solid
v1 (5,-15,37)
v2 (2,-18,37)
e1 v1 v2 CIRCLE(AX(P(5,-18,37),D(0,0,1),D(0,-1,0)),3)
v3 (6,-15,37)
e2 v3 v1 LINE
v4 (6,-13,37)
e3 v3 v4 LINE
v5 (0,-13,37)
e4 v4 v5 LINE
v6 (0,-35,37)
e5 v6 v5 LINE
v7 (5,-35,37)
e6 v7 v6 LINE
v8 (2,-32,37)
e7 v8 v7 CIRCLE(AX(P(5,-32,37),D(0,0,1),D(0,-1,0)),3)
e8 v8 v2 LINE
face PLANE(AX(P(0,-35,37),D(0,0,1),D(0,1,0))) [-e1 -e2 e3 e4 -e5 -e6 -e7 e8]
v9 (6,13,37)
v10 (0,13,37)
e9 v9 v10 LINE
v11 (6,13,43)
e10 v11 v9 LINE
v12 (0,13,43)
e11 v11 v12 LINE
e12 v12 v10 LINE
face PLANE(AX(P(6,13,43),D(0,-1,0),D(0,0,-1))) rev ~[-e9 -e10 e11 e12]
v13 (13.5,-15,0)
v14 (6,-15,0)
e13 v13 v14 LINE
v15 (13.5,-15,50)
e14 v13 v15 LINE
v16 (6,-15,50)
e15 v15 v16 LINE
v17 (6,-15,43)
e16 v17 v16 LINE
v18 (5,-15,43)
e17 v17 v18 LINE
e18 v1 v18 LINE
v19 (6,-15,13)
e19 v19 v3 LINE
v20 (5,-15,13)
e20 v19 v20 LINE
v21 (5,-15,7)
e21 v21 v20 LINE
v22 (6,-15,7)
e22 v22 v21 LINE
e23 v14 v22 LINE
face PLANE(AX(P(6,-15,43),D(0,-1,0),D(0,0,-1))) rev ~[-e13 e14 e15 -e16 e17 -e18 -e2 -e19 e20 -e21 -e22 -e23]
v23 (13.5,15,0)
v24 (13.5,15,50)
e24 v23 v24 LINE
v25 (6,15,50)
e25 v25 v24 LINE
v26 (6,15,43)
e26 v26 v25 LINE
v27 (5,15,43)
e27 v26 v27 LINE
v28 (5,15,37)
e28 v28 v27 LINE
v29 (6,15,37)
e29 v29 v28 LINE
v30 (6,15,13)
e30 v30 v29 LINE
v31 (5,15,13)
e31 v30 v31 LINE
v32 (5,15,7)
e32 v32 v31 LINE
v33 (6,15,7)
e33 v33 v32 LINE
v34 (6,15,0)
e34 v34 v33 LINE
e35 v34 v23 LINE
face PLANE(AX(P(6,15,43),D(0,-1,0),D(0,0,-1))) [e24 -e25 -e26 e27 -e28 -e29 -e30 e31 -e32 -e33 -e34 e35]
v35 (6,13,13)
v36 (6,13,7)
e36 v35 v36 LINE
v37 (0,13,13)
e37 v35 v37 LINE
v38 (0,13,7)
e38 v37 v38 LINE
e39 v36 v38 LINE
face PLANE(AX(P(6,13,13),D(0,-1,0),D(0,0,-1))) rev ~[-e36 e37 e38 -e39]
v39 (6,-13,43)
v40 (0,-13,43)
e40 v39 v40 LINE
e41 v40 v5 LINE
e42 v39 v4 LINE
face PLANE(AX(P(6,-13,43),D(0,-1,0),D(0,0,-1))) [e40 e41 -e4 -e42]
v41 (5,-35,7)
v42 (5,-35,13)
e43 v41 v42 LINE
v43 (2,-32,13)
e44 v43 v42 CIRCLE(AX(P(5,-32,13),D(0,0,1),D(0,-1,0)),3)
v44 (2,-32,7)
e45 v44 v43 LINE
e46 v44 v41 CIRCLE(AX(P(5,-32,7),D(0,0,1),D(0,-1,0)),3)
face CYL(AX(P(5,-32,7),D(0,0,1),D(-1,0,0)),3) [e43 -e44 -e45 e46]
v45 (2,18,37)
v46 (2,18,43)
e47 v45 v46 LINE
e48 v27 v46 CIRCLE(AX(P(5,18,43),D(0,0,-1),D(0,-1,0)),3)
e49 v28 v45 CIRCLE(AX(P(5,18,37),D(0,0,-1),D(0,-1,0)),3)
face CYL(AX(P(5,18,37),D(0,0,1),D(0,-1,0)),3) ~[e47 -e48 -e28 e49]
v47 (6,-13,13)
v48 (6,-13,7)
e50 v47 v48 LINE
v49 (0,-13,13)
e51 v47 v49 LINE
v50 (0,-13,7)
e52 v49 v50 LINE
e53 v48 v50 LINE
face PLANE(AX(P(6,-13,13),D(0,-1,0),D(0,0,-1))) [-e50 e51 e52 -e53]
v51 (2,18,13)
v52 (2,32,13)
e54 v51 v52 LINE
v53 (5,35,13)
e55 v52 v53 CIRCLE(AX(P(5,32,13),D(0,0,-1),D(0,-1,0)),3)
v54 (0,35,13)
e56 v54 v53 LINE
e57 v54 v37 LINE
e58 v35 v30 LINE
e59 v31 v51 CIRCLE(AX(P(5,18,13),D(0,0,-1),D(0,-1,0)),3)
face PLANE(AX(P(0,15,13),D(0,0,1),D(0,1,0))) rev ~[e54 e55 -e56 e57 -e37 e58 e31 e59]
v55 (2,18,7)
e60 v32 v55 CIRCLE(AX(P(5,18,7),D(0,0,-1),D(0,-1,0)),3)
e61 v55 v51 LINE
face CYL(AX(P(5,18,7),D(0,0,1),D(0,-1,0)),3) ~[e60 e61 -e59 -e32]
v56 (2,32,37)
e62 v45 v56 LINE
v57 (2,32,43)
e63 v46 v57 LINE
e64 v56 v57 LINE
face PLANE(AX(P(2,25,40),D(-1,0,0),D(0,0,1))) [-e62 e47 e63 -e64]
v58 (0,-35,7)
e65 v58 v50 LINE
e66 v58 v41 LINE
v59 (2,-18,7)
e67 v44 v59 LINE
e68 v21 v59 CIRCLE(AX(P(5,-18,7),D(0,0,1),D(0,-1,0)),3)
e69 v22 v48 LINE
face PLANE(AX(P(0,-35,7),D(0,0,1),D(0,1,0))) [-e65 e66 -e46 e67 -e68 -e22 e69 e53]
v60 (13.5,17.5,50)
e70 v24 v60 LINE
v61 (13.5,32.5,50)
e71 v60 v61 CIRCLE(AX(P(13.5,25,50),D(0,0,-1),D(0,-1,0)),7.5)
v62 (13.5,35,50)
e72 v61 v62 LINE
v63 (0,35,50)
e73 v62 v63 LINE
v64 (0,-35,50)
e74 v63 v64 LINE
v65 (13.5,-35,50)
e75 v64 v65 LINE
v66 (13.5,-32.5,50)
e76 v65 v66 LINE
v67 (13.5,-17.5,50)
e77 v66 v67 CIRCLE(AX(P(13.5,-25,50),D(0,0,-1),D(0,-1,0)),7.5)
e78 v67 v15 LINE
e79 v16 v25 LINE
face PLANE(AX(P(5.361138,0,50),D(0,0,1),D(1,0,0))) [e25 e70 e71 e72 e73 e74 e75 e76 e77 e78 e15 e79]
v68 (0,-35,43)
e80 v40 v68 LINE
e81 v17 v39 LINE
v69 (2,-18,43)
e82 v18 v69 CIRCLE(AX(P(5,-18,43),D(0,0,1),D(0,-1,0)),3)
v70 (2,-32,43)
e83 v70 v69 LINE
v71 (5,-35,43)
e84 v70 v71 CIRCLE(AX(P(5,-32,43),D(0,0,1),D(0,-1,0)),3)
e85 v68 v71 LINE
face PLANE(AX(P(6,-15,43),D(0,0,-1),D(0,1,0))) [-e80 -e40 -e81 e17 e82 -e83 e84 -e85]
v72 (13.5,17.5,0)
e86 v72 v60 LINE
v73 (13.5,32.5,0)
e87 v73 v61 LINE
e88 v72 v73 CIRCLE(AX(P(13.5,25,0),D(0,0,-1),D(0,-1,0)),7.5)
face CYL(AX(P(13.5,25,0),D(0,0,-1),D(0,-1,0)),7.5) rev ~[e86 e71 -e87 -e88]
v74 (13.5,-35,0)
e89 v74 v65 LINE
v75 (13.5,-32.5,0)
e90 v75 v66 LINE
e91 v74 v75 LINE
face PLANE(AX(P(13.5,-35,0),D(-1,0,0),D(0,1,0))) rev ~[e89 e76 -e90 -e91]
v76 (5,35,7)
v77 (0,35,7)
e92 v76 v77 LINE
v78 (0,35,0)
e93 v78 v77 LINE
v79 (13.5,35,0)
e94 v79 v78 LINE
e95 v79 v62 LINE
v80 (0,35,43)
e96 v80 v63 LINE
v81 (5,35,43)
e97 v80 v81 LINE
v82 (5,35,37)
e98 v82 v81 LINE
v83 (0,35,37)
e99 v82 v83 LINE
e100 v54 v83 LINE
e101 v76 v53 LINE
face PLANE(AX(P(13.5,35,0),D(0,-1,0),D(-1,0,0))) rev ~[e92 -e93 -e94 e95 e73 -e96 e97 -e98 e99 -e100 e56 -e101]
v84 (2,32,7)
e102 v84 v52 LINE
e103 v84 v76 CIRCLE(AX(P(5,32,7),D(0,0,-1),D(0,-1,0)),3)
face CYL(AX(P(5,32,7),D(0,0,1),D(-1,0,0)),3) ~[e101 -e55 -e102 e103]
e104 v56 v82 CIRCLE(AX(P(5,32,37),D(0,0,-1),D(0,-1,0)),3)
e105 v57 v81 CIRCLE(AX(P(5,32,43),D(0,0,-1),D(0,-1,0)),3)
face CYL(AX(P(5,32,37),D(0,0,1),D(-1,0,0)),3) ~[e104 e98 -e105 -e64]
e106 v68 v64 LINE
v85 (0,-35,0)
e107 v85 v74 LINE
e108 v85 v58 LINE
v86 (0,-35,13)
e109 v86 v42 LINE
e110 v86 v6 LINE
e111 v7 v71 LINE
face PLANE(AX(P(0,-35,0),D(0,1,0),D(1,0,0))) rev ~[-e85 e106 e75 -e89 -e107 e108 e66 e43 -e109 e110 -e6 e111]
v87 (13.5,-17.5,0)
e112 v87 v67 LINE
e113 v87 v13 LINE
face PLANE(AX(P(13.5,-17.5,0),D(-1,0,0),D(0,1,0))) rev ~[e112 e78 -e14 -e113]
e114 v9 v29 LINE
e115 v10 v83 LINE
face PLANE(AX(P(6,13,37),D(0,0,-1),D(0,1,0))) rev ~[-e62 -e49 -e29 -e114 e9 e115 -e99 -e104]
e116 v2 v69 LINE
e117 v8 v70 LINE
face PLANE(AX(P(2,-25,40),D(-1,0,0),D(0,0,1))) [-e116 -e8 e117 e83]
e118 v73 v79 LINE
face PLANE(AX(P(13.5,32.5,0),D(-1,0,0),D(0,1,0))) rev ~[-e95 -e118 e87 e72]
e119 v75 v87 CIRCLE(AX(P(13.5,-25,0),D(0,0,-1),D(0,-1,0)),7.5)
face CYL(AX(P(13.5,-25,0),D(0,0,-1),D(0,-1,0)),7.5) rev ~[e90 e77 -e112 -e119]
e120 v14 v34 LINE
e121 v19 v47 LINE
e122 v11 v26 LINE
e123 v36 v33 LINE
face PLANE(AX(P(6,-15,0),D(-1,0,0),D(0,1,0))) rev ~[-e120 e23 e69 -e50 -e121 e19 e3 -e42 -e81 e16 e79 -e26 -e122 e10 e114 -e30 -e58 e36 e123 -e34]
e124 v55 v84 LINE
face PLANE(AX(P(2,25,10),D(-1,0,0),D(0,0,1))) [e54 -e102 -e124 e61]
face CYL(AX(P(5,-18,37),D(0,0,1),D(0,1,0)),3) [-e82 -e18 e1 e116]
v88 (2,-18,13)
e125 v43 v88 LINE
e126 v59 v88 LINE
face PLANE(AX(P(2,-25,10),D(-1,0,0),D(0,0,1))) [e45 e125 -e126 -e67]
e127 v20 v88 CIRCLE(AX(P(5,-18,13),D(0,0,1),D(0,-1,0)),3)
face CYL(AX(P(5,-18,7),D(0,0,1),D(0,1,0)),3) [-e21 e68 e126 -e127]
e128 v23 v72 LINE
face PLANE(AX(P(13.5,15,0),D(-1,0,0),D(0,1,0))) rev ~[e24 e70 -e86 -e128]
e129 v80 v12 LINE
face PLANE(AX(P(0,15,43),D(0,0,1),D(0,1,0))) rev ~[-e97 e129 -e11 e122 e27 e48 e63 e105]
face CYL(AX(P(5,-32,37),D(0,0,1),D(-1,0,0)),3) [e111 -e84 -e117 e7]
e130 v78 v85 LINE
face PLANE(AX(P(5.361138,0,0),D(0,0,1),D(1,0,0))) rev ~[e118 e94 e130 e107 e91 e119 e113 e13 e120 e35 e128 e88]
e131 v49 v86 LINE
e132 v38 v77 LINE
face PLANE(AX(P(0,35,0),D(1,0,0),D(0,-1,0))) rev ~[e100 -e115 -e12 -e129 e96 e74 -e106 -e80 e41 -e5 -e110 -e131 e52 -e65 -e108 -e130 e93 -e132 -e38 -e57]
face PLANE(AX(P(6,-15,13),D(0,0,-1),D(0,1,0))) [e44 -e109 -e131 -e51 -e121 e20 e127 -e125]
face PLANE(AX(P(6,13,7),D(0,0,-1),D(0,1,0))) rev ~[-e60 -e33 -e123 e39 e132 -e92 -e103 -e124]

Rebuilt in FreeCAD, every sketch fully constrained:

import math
import FreeCAD as App
import Part
import Sketcher

V = App.Vector


def edges_at(feature, points):
    """Names of the edges that pass closest to the given points."""
    edges = feature.Shape.Edges
    near = lambda p: min(range(len(edges)), key=lambda i: edges[i].distToShape(Part.Vertex(*p))[0])
    return sorted({f"Edge{near(p) + 1}" for p in points})


def add_polygon(sketch, points):
    """Adds a closed chain of lines whose ends are joined by coincident constraints."""
    first, n = sketch.GeometryCount, len(points)
    for a, b in zip(points, points[1:] + points[:1]):
        sketch.addGeometry(Part.LineSegment(App.Vector(*a, 0), App.Vector(*b, 0)), False)
    for i in range(n):
        sketch.addConstraint(Sketcher.Constraint("Coincident", first + i, 2, first + (i + 1) % n, 1))

doc = App.newDocument("Part")
body = doc.addObject("PartDesign::Body", "Body")

sketch1 = body.newObject("Sketcher::SketchObject", "Sketch")
sketch1.AttachmentSupport = (doc.getObject("XY_Plane"), [""])
sketch1.MapMode = "FlatFace"
sketch1.addGeometry(Part.LineSegment(V(0, 35, 0), V(0, -35, 0)), False)
sketch1.addGeometry(Part.LineSegment(V(0, -35, 0), V(13.5, -35, 0)), False)
sketch1.addGeometry(Part.LineSegment(V(13.5, -35, 0), V(13.5, -32.5, 0)), False)
sketch1.addGeometry(Part.ArcOfCircle(Part.Circle(V(13.5, -25, 0), V(0, 0, 1), 7.5), math.radians(90), math.radians(270)), False)
sketch1.addGeometry(Part.LineSegment(V(13.5, -17.5, 0), V(13.5, -15, 0)), False)
sketch1.addGeometry(Part.LineSegment(V(13.5, -15, 0), V(6, -15, 0)), False)
sketch1.addGeometry(Part.LineSegment(V(6, -15, 0), V(6, 15, 0)), False)
sketch1.addGeometry(Part.LineSegment(V(6, 15, 0), V(13.5, 15, 0)), False)
sketch1.addGeometry(Part.LineSegment(V(13.5, 15, 0), V(13.5, 17.5, 0)), False)
sketch1.addGeometry(Part.ArcOfCircle(Part.Circle(V(13.5, 25, 0), V(0, 0, 1), 7.5), math.radians(90), math.radians(270)), False)
sketch1.addGeometry(Part.LineSegment(V(13.5, 32.5, 0), V(13.5, 35, 0)), False)
sketch1.addGeometry(Part.LineSegment(V(13.5, 35, 0), V(0, 35, 0)), False)
sketch1.addConstraint(Sketcher.Constraint("Coincident", 0, 2, 1, 1))
sketch1.addConstraint(Sketcher.Constraint("Coincident", 1, 2, 2, 1))
sketch1.addConstraint(Sketcher.Constraint("Coincident", 2, 2, 3, 2))
sketch1.addConstraint(Sketcher.Constraint("Coincident", 3, 1, 4, 1))
sketch1.addConstraint(Sketcher.Constraint("Coincident", 4, 2, 5, 1))
sketch1.addConstraint(Sketcher.Constraint("Coincident", 5, 2, 6, 1))
sketch1.addConstraint(Sketcher.Constraint("Coincident", 6, 2, 7, 1))
sketch1.addConstraint(Sketcher.Constraint("Coincident", 7, 2, 8, 1))
sketch1.addConstraint(Sketcher.Constraint("Coincident", 8, 2, 9, 2))
sketch1.addConstraint(Sketcher.Constraint("Coincident", 9, 1, 10, 1))
sketch1.addConstraint(Sketcher.Constraint("Coincident", 10, 2, 11, 1))
sketch1.addConstraint(Sketcher.Constraint("Coincident", 11, 2, 0, 1))
sketch1.addConstraint(Sketcher.Constraint("Vertical", 0))
sketch1.addConstraint(Sketcher.Constraint("Horizontal", 1))
sketch1.addConstraint(Sketcher.Constraint("Vertical", 2))
sketch1.addConstraint(Sketcher.Constraint("Vertical", 4))
sketch1.addConstraint(Sketcher.Constraint("Horizontal", 5))
sketch1.addConstraint(Sketcher.Constraint("Vertical", 6))
sketch1.addConstraint(Sketcher.Constraint("Horizontal", 7))
sketch1.addConstraint(Sketcher.Constraint("Vertical", 8))
sketch1.addConstraint(Sketcher.Constraint("Vertical", 10))
sketch1.addConstraint(Sketcher.Constraint("Horizontal", 11))
sketch1.addConstraint(Sketcher.Constraint("Equal", 3, 9))
sketch1.addConstraint(Sketcher.Constraint("Symmetric", 0, 2, 11, 2, -1, 1))
sketch1.addConstraint(Sketcher.Constraint("Symmetric", 3, 3, 9, 3, -1))
sketch1.addConstraint(Sketcher.Constraint("Symmetric", 4, 2, 7, 2, -1))
sketch1.addConstraint(Sketcher.Constraint("Vertical", 9, 3, 1, 2))
sketch1.addConstraint(Sketcher.Constraint("Vertical", 2, 2, 3, 1))
sketch1.addConstraint(Sketcher.Constraint("Vertical", 8, 2, 9, 1))
sketch1.addConstraint(Sketcher.Constraint("Equal", 2, 4))
sketch1.addConstraint(Sketcher.Constraint("Radius", 3, 7.5))
sketch1.addConstraint(Sketcher.Constraint("DistanceY", 0, 2, 0, 1, 70.0))
sketch1.addConstraint(Sketcher.Constraint("DistanceY", 6, 1, 6, 2, 30.0))
sketch1.addConstraint(Sketcher.Constraint("DistanceX", 1, 1, 1, 2, 13.5))
sketch1.addConstraint(Sketcher.Constraint("DistanceX", 5, 2, 5, 1, 7.5))
pad1 = body.newObject("PartDesign::Pad", "Pad")
pad1.Profile = sketch1
pad1.Length = 50

sketch2 = body.newObject("Sketcher::SketchObject", "Sketch001")
sketch2.AttachmentSupport = (doc.getObject("YZ_Plane"), [""])
sketch2.MapMode = "FlatFace"
sketch2.AttachmentOffset = App.Placement(V(0, 0, 6), App.Rotation())
add_polygon(sketch2, [(15, 13), (13, 13), (13, 7), (15, 7)])
add_polygon(sketch2, [(15, 43), (13, 43), (13, 37), (15, 37)])
add_polygon(sketch2, [(-13, 43), (-15, 43), (-15, 37), (-13, 37)])
add_polygon(sketch2, [(-13, 13), (-15, 13), (-15, 7), (-13, 7)])
sketch2.addConstraint(Sketcher.Constraint("Horizontal", 0))
sketch2.addConstraint(Sketcher.Constraint("Vertical", 1))
sketch2.addConstraint(Sketcher.Constraint("Horizontal", 2))
sketch2.addConstraint(Sketcher.Constraint("Vertical", 3))
sketch2.addConstraint(Sketcher.Constraint("Horizontal", 4))
sketch2.addConstraint(Sketcher.Constraint("Vertical", 5))
sketch2.addConstraint(Sketcher.Constraint("Horizontal", 6))
sketch2.addConstraint(Sketcher.Constraint("Vertical", 7))
sketch2.addConstraint(Sketcher.Constraint("Horizontal", 8))
sketch2.addConstraint(Sketcher.Constraint("Vertical", 9))
sketch2.addConstraint(Sketcher.Constraint("Horizontal", 10))
sketch2.addConstraint(Sketcher.Constraint("Vertical", 11))
sketch2.addConstraint(Sketcher.Constraint("Horizontal", 12))
sketch2.addConstraint(Sketcher.Constraint("Vertical", 13))
sketch2.addConstraint(Sketcher.Constraint("Horizontal", 14))
sketch2.addConstraint(Sketcher.Constraint("Vertical", 15))
sketch2.addConstraint(Sketcher.Constraint("Symmetric", 7, 2, 8, 2, -2))
sketch2.addConstraint(Sketcher.Constraint("Symmetric", 5, 2, 10, 2, -2))
sketch2.addConstraint(Sketcher.Constraint("Symmetric", 3, 2, 12, 2, -2))
sketch2.addConstraint(Sketcher.Constraint("Symmetric", 1, 2, 14, 2, -2))
sketch2.addConstraint(Sketcher.Constraint("Vertical", 1, 2, 4, 2))
sketch2.addConstraint(Sketcher.Constraint("Vertical", 3, 2, 6, 2))
sketch2.addConstraint(Sketcher.Constraint("Equal", 3, 5))
sketch2.addConstraint(Sketcher.Constraint("DistanceX", 0, 2, 0, 1, 2.0))
sketch2.addConstraint(Sketcher.Constraint("DistanceY", 1, 2, 1, 1, 6.0))
sketch2.addConstraint(Sketcher.Constraint("DistanceX", -1, 1, 0, 2, 13.0))
sketch2.addConstraint(Sketcher.Constraint("DistanceY", -1, 1, 0, 2, 13.0))
sketch2.addConstraint(Sketcher.Constraint("DistanceY", -1, 1, 4, 2, 43.0))
pocket1 = body.newObject("PartDesign::Pocket", "Pocket")
pocket1.Profile = sketch2
pocket1.Length = 10

sketch3 = body.newObject("Sketcher::SketchObject", "Sketch002")
sketch3.AttachmentSupport = (doc.getObject("YZ_Plane"), [""])
sketch3.MapMode = "FlatFace"
add_polygon(sketch3, [(35, 7), (15, 7), (15, 13), (35, 13)])
add_polygon(sketch3, [(35, 37), (15, 37), (15, 43), (35, 43)])
add_polygon(sketch3, [(-15, 37), (-35, 37), (-35, 43), (-15, 43)])
add_polygon(sketch3, [(-15, 7), (-35, 7), (-35, 13), (-15, 13)])
sketch3.addConstraint(Sketcher.Constraint("Horizontal", 0))
sketch3.addConstraint(Sketcher.Constraint("Vertical", 1))
sketch3.addConstraint(Sketcher.Constraint("Horizontal", 2))
sketch3.addConstraint(Sketcher.Constraint("Vertical", 3))
sketch3.addConstraint(Sketcher.Constraint("Horizontal", 4))
sketch3.addConstraint(Sketcher.Constraint("Vertical", 5))
sketch3.addConstraint(Sketcher.Constraint("Horizontal", 6))
sketch3.addConstraint(Sketcher.Constraint("Vertical", 7))
sketch3.addConstraint(Sketcher.Constraint("Horizontal", 8))
sketch3.addConstraint(Sketcher.Constraint("Vertical", 9))
sketch3.addConstraint(Sketcher.Constraint("Horizontal", 10))
sketch3.addConstraint(Sketcher.Constraint("Vertical", 11))
sketch3.addConstraint(Sketcher.Constraint("Horizontal", 12))
sketch3.addConstraint(Sketcher.Constraint("Vertical", 13))
sketch3.addConstraint(Sketcher.Constraint("Horizontal", 14))
sketch3.addConstraint(Sketcher.Constraint("Vertical", 15))
sketch3.addConstraint(Sketcher.Constraint("Symmetric", 7, 2, 8, 2, -2))
sketch3.addConstraint(Sketcher.Constraint("Symmetric", 5, 2, 10, 2, -2))
sketch3.addConstraint(Sketcher.Constraint("Symmetric", 3, 2, 12, 2, -2))
sketch3.addConstraint(Sketcher.Constraint("Symmetric", 1, 2, 14, 2, -2))
sketch3.addConstraint(Sketcher.Constraint("Vertical", 1, 2, 4, 2))
sketch3.addConstraint(Sketcher.Constraint("Vertical", 3, 2, 6, 2))
sketch3.addConstraint(Sketcher.Constraint("Equal", 3, 5))
sketch3.addConstraint(Sketcher.Constraint("DistanceX", 0, 2, 0, 1, 20.0))
sketch3.addConstraint(Sketcher.Constraint("DistanceY", 1, 1, 1, 2, 6.0))
sketch3.addConstraint(Sketcher.Constraint("DistanceX", -1, 1, 0, 2, 15.0))
sketch3.addConstraint(Sketcher.Constraint("DistanceY", -1, 1, 0, 2, 7.0))
sketch3.addConstraint(Sketcher.Constraint("DistanceY", -1, 1, 4, 2, 37.0))
pocket2 = body.newObject("PartDesign::Pocket", "Pocket001")
pocket2.Profile = sketch3
pocket2.Length = 2
pocket2.Reversed = True
doc.recompute()

fillet = body.newObject("PartDesign::Fillet", "Fillet")
fillet.Base = (pocket2, edges_at(pocket2, [
    (2, 15, 10),
    (2, 35, 10),
    (2, 15, 40),
    (2, 35, 40),
    (2, -15, 40),
    (2, -35, 40),
    (2, -15, 10),
    (2, -35, 10),
]))
fillet.Radius = 3

doc.recompute()
